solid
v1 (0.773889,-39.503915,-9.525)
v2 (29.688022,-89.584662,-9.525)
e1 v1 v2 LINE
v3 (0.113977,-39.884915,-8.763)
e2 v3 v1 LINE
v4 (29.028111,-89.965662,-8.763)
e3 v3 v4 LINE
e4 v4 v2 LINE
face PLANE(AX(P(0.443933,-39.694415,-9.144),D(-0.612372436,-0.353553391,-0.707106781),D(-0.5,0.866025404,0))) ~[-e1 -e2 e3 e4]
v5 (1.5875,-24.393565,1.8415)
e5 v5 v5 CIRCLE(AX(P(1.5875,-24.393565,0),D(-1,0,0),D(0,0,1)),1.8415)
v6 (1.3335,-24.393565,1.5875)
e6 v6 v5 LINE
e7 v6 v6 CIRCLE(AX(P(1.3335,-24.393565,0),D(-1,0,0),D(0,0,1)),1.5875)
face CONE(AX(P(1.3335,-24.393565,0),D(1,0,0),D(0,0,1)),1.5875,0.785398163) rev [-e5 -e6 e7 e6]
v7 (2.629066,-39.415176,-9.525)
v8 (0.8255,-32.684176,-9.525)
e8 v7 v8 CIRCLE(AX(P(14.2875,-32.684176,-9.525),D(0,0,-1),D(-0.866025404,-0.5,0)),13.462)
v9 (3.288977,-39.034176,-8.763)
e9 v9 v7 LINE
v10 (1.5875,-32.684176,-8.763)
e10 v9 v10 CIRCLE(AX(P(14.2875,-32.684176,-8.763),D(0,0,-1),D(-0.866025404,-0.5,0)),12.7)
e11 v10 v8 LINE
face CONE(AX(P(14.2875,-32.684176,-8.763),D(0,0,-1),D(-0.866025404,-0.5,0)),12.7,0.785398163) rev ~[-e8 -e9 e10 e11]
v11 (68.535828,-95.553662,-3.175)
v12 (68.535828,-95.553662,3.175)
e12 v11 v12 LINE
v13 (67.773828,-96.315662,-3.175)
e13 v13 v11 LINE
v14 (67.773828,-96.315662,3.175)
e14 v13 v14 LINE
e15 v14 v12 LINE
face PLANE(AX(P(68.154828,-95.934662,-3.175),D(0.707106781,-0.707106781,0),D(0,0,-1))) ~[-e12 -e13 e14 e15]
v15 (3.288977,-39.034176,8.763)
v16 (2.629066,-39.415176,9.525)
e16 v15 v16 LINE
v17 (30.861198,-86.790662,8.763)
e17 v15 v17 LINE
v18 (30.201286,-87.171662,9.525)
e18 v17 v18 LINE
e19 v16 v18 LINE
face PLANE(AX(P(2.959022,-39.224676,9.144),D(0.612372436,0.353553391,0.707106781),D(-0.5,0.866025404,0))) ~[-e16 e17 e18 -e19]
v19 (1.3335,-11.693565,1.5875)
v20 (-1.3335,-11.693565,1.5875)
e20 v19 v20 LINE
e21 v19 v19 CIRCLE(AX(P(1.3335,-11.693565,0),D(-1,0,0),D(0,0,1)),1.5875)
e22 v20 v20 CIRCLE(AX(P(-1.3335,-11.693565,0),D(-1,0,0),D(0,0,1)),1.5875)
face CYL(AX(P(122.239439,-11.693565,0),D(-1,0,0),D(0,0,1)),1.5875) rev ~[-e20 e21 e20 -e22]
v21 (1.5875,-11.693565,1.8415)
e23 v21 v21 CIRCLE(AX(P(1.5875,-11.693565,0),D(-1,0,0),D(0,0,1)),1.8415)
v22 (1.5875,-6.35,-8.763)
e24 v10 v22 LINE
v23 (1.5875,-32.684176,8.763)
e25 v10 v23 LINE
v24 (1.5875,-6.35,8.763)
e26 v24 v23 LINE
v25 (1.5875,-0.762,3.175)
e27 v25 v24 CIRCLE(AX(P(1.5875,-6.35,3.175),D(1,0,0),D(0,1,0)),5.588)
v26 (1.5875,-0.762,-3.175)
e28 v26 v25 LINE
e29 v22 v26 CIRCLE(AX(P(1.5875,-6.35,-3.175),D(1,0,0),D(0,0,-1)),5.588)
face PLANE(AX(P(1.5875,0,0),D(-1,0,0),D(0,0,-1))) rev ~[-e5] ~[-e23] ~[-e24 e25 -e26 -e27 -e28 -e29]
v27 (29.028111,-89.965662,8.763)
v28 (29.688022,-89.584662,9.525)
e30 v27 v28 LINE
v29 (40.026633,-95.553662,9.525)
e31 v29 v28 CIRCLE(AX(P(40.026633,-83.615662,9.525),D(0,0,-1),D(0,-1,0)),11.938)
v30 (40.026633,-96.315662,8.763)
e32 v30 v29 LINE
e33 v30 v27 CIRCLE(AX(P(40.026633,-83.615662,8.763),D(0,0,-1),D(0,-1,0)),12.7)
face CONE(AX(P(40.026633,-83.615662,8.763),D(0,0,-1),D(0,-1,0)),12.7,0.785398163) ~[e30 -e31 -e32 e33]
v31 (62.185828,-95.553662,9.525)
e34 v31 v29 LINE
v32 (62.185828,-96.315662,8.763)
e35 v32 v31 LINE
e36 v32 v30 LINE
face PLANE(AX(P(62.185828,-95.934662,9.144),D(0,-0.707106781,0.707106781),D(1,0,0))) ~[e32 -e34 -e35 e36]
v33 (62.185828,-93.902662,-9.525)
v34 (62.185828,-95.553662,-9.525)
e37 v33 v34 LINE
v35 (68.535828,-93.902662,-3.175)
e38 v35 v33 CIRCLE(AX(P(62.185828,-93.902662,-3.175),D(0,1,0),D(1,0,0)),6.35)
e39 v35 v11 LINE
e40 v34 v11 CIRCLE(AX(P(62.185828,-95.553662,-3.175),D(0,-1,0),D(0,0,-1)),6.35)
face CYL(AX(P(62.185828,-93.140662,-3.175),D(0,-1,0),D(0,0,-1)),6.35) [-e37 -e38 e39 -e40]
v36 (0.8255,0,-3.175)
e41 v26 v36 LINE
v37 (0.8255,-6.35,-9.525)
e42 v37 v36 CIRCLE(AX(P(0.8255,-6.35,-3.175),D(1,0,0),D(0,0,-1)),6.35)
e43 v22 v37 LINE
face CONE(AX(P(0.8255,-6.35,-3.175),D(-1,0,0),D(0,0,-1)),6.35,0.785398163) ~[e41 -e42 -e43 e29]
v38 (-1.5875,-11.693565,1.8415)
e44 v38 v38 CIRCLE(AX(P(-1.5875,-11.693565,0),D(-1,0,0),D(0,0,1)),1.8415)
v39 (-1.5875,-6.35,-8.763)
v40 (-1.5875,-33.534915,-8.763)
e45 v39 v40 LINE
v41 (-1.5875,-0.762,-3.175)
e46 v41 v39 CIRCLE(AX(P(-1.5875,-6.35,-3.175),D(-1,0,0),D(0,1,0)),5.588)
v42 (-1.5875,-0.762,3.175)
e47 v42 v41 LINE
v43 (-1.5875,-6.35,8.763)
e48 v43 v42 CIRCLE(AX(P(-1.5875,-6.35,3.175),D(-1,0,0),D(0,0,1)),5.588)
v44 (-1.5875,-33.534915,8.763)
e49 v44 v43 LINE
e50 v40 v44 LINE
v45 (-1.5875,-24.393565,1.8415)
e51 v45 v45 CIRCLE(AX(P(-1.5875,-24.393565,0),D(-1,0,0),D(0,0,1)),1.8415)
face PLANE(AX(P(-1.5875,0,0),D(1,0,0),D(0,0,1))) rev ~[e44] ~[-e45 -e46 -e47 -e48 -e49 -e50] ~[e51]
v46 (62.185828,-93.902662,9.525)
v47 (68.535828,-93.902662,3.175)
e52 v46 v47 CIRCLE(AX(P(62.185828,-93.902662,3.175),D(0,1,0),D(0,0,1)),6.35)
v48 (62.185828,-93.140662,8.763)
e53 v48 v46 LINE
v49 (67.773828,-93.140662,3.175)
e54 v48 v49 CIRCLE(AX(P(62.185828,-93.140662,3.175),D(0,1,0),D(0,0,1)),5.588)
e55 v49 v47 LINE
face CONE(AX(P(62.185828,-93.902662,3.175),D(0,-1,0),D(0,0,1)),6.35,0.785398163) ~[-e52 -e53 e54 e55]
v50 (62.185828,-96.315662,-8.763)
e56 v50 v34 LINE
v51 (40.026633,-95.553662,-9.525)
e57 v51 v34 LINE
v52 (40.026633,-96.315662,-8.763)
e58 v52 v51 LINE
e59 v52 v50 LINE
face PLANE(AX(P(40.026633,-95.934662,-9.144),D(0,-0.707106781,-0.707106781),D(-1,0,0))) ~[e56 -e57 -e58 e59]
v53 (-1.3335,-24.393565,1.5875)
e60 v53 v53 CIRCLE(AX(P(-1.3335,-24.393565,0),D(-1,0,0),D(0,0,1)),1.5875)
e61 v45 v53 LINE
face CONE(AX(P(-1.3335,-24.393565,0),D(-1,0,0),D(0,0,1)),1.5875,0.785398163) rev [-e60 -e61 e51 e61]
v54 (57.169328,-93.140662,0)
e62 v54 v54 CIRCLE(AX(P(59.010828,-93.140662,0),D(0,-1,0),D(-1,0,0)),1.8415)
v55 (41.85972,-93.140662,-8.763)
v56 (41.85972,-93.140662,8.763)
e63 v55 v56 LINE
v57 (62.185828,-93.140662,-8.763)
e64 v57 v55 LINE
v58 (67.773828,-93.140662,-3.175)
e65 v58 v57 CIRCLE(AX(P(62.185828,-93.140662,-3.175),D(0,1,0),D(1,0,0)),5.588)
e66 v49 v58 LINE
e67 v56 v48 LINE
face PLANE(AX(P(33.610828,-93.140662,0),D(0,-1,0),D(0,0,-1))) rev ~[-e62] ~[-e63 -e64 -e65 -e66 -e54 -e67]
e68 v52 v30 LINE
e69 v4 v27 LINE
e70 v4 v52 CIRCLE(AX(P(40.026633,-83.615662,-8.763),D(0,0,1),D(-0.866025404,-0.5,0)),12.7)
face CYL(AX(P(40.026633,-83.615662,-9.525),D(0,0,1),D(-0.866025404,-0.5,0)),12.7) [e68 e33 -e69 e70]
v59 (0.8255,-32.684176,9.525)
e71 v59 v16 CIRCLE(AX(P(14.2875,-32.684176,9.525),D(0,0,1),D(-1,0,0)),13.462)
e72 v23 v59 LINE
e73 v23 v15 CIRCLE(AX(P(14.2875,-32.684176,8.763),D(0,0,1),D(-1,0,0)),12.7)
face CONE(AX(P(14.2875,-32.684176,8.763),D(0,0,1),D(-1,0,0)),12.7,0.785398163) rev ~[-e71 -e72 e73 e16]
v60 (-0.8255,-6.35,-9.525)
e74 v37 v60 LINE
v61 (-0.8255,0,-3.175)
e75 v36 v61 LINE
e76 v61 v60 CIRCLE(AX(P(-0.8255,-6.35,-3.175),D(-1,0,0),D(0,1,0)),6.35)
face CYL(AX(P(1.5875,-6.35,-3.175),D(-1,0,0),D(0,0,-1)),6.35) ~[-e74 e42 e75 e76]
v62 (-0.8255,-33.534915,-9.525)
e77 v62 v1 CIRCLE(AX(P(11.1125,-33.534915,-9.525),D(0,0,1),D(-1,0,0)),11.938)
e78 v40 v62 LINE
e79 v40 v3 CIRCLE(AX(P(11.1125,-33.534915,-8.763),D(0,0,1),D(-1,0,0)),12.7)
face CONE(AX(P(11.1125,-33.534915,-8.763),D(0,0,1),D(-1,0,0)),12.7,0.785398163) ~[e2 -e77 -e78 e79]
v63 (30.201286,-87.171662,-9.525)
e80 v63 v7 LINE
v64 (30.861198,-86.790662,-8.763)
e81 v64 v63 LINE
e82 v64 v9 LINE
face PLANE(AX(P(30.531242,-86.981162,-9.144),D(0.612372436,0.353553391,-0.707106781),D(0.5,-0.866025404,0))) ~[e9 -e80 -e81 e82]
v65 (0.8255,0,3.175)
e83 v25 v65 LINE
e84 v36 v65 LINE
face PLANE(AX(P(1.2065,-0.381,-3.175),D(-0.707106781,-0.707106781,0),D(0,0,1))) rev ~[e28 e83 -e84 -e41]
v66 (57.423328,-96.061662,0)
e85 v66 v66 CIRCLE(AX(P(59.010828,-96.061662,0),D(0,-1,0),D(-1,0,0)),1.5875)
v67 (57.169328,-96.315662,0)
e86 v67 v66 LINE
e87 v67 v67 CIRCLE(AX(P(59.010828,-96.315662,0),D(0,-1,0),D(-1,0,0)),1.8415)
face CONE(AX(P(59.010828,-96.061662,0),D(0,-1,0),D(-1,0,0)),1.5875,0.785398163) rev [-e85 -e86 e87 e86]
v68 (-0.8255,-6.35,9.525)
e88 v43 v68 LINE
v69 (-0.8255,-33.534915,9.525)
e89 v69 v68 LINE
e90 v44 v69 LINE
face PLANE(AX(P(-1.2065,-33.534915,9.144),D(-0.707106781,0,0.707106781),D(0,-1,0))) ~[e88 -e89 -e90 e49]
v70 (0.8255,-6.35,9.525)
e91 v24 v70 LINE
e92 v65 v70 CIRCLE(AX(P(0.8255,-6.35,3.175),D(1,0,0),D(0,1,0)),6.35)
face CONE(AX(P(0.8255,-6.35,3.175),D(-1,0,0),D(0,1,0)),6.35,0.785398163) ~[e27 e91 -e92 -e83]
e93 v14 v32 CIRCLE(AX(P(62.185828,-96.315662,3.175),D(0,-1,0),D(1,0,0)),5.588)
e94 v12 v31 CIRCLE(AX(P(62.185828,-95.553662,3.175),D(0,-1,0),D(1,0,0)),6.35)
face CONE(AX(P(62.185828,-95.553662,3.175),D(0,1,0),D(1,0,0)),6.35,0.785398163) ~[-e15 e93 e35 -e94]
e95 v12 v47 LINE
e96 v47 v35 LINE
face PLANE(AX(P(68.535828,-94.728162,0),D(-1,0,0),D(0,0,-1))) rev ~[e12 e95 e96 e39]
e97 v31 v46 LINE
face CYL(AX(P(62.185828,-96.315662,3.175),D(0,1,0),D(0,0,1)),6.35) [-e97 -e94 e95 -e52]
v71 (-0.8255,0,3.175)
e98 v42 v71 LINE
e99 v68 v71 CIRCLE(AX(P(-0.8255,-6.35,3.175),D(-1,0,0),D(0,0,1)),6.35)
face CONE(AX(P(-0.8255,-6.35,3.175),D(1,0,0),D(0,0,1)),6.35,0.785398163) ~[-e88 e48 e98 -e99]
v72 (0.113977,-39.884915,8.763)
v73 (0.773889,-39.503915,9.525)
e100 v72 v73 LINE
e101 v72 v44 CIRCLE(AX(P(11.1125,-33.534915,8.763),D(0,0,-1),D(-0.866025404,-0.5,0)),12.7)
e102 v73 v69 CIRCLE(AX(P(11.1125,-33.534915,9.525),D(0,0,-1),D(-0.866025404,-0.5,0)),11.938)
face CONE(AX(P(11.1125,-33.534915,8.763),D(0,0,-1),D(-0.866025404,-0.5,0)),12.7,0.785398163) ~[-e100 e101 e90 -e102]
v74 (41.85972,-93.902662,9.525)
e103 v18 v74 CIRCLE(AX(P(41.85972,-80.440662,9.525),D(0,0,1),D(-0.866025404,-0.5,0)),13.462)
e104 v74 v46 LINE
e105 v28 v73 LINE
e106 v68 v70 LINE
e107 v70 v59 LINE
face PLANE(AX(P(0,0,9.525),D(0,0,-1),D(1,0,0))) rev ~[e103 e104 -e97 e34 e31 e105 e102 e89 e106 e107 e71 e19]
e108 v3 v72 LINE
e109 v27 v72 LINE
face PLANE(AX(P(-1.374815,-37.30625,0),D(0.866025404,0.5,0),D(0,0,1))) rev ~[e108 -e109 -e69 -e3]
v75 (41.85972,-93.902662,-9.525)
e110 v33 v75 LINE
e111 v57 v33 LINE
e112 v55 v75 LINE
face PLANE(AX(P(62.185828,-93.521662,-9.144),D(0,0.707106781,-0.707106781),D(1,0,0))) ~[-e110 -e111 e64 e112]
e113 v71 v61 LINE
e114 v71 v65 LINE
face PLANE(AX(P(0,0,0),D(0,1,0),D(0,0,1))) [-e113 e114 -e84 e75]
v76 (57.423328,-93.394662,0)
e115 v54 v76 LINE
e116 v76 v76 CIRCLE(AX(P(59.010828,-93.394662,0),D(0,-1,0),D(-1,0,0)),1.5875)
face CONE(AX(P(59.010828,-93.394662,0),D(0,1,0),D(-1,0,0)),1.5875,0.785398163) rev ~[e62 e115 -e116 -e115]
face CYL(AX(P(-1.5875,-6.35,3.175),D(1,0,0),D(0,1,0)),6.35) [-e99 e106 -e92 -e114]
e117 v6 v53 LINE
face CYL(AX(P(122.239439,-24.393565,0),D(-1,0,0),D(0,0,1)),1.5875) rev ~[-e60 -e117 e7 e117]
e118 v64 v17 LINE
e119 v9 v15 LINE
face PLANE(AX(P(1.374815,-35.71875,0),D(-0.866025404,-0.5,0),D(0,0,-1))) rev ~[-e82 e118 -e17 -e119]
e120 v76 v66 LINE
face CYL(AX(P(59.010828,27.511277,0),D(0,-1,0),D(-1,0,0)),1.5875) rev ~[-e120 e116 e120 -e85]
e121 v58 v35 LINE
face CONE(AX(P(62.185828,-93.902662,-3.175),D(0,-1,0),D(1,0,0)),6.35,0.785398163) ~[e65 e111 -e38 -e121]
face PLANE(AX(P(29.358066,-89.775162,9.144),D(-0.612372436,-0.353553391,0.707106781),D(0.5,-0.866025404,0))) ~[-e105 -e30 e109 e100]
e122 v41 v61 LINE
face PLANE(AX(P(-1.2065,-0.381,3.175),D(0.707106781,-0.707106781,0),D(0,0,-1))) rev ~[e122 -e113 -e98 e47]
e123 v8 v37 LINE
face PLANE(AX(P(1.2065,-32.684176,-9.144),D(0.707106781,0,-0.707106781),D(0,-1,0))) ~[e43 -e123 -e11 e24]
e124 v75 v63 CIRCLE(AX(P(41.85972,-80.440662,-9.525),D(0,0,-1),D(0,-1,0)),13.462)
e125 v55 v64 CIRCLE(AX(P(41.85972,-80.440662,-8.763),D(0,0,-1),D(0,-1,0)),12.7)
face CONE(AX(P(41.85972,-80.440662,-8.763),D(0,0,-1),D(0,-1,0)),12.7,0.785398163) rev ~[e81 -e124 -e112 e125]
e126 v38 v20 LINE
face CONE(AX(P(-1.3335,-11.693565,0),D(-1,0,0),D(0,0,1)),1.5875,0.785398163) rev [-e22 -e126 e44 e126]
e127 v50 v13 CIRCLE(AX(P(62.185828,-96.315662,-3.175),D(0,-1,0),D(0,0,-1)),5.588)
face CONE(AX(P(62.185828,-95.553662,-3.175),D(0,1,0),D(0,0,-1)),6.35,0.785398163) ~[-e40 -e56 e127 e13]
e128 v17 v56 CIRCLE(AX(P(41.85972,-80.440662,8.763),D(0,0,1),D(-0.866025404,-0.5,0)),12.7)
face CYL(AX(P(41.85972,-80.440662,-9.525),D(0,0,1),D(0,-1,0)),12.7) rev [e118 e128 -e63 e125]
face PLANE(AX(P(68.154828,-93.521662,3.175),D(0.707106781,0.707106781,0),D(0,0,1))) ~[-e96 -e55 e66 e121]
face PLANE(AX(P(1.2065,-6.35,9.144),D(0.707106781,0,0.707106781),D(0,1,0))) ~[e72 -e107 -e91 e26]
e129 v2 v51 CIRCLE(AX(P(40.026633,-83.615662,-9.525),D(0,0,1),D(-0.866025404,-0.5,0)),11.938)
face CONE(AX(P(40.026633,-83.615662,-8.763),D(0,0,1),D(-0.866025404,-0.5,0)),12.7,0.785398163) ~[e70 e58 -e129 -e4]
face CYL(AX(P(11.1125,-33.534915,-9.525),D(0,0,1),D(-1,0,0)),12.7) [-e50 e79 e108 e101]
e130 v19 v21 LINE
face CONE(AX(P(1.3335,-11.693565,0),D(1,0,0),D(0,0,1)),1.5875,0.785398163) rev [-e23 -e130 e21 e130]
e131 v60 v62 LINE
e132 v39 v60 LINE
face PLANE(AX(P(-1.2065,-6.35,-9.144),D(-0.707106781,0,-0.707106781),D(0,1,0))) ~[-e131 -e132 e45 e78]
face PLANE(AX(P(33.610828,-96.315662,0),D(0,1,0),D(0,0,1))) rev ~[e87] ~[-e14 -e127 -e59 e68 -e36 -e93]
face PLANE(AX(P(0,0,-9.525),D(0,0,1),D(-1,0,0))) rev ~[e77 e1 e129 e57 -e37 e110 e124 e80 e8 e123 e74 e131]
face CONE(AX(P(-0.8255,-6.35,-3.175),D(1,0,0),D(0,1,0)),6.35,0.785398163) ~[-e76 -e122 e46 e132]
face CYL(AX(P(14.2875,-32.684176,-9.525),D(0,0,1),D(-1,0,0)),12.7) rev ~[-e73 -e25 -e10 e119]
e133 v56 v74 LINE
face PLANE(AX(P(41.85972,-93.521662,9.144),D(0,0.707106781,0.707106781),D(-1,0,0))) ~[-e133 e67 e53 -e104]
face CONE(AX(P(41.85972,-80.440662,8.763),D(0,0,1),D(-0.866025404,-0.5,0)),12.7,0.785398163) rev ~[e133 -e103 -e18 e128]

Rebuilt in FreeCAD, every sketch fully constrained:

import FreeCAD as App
import Part
import Sketcher

V = App.Vector
Q = App.Units.Quantity


def edges_at(feature, points):
    """Names of the edges that pass closest to the given points."""
    edges = feature.Shape.Edges
    near = lambda p: min(range(len(edges)), key=lambda i: edges[i].distToShape(Part.Vertex(*p))[0])
    return sorted({f"Edge{near(p) + 1}" for p in points})

doc = App.newDocument("Part")
body = doc.addObject("PartDesign::Body", "Body")

# Sketch on XZ plane
sketch1 = body.newObject("Sketcher::SketchObject", "Sketch")
sketch1.AttachmentSupport = (doc.getObject("XZ_Plane"), [""])
sketch1.MapMode = "FlatFace"
sketch1.addGeometry([
    Part.LineSegment(V(-1.6, -9.5, 0), V(-1.6, 9.5, 0)),
    Part.LineSegment(V(-1.6, 9.5, 0), V(1.6, 9.5, 0)),
    Part.LineSegment(V(1.6, 9.5, 0), V(1.6, -9.5, 0)),
    Part.LineSegment(V(1.6, -9.5, 0), V(-1.6, -9.5, 0)),
], False)
sketch1.addConstraint([
    Sketcher.Constraint("Coincident", 0, 2, 1, 1),
    Sketcher.Constraint("Coincident", 1, 2, 2, 1),
    Sketcher.Constraint("Coincident", 2, 2, 3, 1),
    Sketcher.Constraint("Coincident", 3, 2, 0, 1),
    Sketcher.Constraint("Vertical", 0),
    Sketcher.Constraint("Horizontal", 1),
    Sketcher.Constraint("Vertical", 2),
    Sketcher.Constraint("Horizontal", 3),
    Sketcher.Constraint("Symmetric", 0, 2, 2, 2, -1, 1),
    Sketcher.Constraint("DistanceY", 0, 1, 0, 2, Q("0.75 in")),
    Sketcher.Constraint("DistanceX", 1, 1, 1, 2, Q("0.125 in")),
])

# Sketch on XY plane
sketch2 = body.newObject("Sketcher::SketchObject", "Sketch001")
sketch2.AttachmentSupport = (doc.getObject("XY_Plane"), [""])
sketch2.MapMode = "FlatFace"
sketch2.addGeometry([
    Part.LineSegment(V(0, 0, 0), V(0, -37, 0)),
    Part.LineSegment(V(0, -37, 0), V(34, -95, 0)),
    Part.LineSegment(V(34, -95, 0), V(69, -95, 0)),
], False)
sketch2.addConstraint([
    Sketcher.Constraint("Coincident", 0, 2, 1, 1),
    Sketcher.Constraint("Coincident", 1, 2, 2, 1),
    Sketcher.Constraint("Vertical", 0),
    Sketcher.Constraint("Horizontal", 2),
    Sketcher.Constraint("Coincident", 0, 1, -1, 1),
    Sketcher.Constraint("Angle", 1, Q("-60 deg")),
    Sketcher.Constraint("DistanceX", 2, 1, 2, 2, Q("1.375 in")),
    Sketcher.Constraint("DistanceY", 0, 2, 0, 1, Q("1.4375 in")),
    Sketcher.Constraint("DistanceX", -1, 1, 1, 2, 33.610828),
])
doc.recompute()

additivepipe = body.newObject("PartDesign::AdditivePipe", "AdditivePipe")
additivepipe.Profile = sketch1
additivepipe.Spine = (sketch2, ["Edge1", "Edge2", "Edge3"])
additivepipe.Transition = "Right corner"

# Sketch on YZ plane
sketch3 = body.newObject("Sketcher::SketchObject", "Sketch002")
sketch3.AttachmentSupport = (doc.getObject("YZ_Plane"), [""])
sketch3.MapMode = "FlatFace"
sketch3.AttachmentOffset = App.Placement(V(0, 0, 0.0625 * 25.4), App.Rotation())
sketch3.addGeometry([
    Part.Circle(V(-11.7, 0, 0), V(0, 0, 1), 1.6),
    Part.Circle(V(-24.4, 0, 0), V(0, 0, 1), 1.6),
], False)
sketch3.addConstraint([
    Sketcher.Constraint("Equal", 0, 1),
    Sketcher.Constraint("PointOnObject", 0, 3, -1),
    Sketcher.Constraint("PointOnObject", 1, 3, -1),
    Sketcher.Constraint("Diameter", 0, Q("0.125 in")),
    Sketcher.Constraint("DistanceX", 1, 3, 0, 3, Q("0.5 in")),
    Sketcher.Constraint("DistanceX", 0, 3, -1, 1, 11.693565),
])
doc.recompute()
hole = body.newObject("PartDesign::Hole", "Hole")
hole.Profile = sketch3
hole.ThreadType = "None"
hole.Diameter = Q("0.125 in")
hole.DepthType = "ThroughAll"

# Sketch on XZ plane
sketch4 = body.newObject("Sketcher::SketchObject", "Sketch003")
sketch4.AttachmentSupport = (doc.getObject("XZ_Plane"), [""])
sketch4.MapMode = "FlatFace"
sketch4.AttachmentOffset = App.Placement(V(0, 0, 93.140662), App.Rotation())
sketch4.addGeometry(Part.Circle(V(59, 0, 0), V(0, 0, 1), 1.6), False)
sketch4.addConstraint([
    Sketcher.Constraint("PointOnObject", 0, 3, -1),
    Sketcher.Constraint("Diameter", 0, Q("0.125 in")),
    Sketcher.Constraint("DistanceX", -1, 1, 0, 3, 59.010828),
])
doc.recompute()
hole2 = body.newObject("PartDesign::Hole", "Hole001")
hole2.Profile = sketch4
hole2.ThreadType = "None"
hole2.Diameter = Q("0.125 in")
hole2.DepthType = "ThroughAll"
hole2.Reversed = True
doc.recompute()

fillet = body.newObject("PartDesign::Fillet", "Fillet")
fillet.Base = (hole2, edges_at(hole2, [
    (1.587, -36.087, 0),
    (-1.587, -36.938, 0),
    (32.694, -96.316, 0),
    (34.527, -93.141, 0),
]))
fillet.Radius = Q("0.5 in")
doc.recompute()

fillet2 = body.newObject("PartDesign::Fillet", "Fillet001")
fillet2.Base = (fillet, edges_at(fillet, [
    (0, 0, -9.525),
    (0, 0, 9.525),
    (68.536, -94.728, -9.525),
    (68.536, -94.728, 9.525),
]))
fillet2.Radius = Q("0.25 in")
doc.recompute()

chamfer = body.newObject("PartDesign::Chamfer", "Chamfer")
chamfer.Base = (fillet2, edges_at(fillet2, [
    (68.536, -96.316, 0),
    (66.676, -96.316, 7.665),
    (66.676, -96.316, -7.665),
    (68.536, -93.141, 0),
    (66.676, -93.141, 7.665),
    (66.676, -93.141, -7.665),
    (1.587, 0, 0),
    (-1.587, 0, 0),
    (-1.587, -19.942, -9.525),
    (-1.587, -19.942, 9.525),
    (-1.587, -1.86, 7.665),
    (-1.587, -1.86, -7.665),
    (1.587, -19.517, -9.525),
    (1.587, -19.517, 9.525),
    (1.587, -1.86, 7.665),
    (1.587, -1.86, -7.665),
    (51.106, -96.316, -9.525),
    (51.106, -96.316, 9.525),
    (52.023, -93.141, -9.525),
    (33.677, -94.614, -9.525),
    (14.571, -64.925, -9.525),
    (17.075, -62.912, -9.525),
    (-1.155, -36.822, -9.525),
    (33.677, -94.614, -9.525),
    (14.571, -64.925, 9.525),
    (17.075, -62.912, 9.525),
    (-1.155, -36.822, 9.525),
    (33.677, -94.614, 9.525),
    (52.023, -93.141, 9.525),
    (33.677, -94.614, 9.525),
    (-1.155, -36.822, -9.525),
    (-1.155, -36.822, 9.525),
    (35.51, -91.439, 9.525),
    (35.51, -91.439, 9.525),
    (35.51, -91.439, -9.525),
    (35.51, -91.439, -9.525),
    (2.02, -35.971, 9.525),
    (2.02, -35.971, 9.525),
    (2.02, -35.971, -9.525),
    (2.02, -35.971, -9.525),
]))
chamfer.Size = Q("0.03 in")
doc.recompute()

chamfer2 = body.newObject("PartDesign::Chamfer", "Chamfer001")
chamfer2.Base = (chamfer, edges_at(chamfer, [
    (1.587, -24.394, -1.587),
    (-1.587, -24.394, -1.587),
    (1.587, -11.694, -1.587),
    (-1.587, -11.694, -1.587),
    (60.598, -93.141, 0),
    (60.598, -96.316, 0),
]))
chamfer2.Size = Q("0.01 in")

doc.recompute()
